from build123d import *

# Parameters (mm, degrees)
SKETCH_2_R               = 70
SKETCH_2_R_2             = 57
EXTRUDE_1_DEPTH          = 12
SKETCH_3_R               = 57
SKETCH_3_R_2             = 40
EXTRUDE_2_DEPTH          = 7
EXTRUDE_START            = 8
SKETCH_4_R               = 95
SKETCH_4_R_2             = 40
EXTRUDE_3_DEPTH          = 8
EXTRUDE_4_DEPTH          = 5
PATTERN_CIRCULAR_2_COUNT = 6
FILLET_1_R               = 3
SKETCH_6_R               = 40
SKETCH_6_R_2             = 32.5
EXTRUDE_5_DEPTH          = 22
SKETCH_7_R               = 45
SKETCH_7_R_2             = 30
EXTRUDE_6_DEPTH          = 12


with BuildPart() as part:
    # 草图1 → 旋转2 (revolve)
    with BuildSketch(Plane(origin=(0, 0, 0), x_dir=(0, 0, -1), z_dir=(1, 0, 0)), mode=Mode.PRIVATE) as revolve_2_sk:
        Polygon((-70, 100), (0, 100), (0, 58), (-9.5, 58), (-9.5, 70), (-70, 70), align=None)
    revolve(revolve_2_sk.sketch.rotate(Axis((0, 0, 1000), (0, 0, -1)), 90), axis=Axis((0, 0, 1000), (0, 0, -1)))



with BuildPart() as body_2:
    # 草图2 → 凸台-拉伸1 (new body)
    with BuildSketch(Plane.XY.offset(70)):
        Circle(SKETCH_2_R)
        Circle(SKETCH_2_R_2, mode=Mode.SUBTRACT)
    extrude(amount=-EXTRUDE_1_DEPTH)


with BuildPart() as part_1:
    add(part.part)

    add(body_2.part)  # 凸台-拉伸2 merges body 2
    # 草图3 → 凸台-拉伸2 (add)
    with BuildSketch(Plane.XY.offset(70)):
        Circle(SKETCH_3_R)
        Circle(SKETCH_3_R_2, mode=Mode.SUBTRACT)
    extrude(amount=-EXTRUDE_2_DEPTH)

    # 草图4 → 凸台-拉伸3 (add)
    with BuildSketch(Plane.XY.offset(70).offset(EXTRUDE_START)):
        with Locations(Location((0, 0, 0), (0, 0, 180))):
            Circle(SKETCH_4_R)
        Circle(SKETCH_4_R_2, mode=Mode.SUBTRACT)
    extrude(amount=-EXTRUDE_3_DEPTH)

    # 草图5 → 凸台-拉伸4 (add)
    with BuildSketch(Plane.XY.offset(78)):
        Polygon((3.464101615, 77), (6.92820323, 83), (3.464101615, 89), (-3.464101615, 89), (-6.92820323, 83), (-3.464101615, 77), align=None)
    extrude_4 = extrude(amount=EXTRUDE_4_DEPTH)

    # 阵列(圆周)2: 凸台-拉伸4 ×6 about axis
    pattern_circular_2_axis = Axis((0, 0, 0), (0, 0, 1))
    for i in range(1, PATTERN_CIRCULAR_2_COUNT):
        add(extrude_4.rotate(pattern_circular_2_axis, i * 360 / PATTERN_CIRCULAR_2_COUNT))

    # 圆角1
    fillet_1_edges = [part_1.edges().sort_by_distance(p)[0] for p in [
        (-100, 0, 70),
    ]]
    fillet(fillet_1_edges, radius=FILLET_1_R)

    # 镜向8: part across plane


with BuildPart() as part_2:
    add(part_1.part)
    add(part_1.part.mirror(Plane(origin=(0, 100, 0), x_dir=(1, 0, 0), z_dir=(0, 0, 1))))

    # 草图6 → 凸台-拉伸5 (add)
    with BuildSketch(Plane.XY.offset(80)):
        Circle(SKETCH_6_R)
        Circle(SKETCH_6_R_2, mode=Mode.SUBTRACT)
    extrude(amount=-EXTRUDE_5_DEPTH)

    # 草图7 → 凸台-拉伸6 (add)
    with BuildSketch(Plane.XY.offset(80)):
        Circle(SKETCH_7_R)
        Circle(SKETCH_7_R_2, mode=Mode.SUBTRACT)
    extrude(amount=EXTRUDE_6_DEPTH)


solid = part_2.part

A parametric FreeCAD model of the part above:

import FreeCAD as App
import Part
import Sketcher
from FreeCAD import Vector
Q = App.Units.Quantity


def edges_at(feature, points):
    """Names of the edges that pass closest to the given points."""
    edges = feature.Shape.Edges
    near = lambda p: min(range(len(edges)), key=lambda i: edges[i].distToShape(Part.Vertex(*p))[0])
    return sorted({f"Edge{near(p) + 1}" for p in points})

doc = App.newDocument("Part")
body = doc.addObject("PartDesign::Body", "Body")

sketch1 = body.newObject("Sketcher::SketchObject", "Sketch")
sketch1.AttachmentSupport = (doc.getObject("YZ_Plane"), [""])
sketch1.MapMode = "FlatFace"
sketch1.addGeometry([
    Part.LineSegment(Vector(100, 0, 0), Vector(100, 70, 0)),
    Part.LineSegment(Vector(100, 70, 0), Vector(70, 70, 0)),
    Part.LineSegment(Vector(70, 70, 0), Vector(70, 9.5, 0)),
    Part.LineSegment(Vector(70, 9.5, 0), Vector(58, 9.5, 0)),
    Part.LineSegment(Vector(58, 9.5, 0), Vector(58, 0, 0)),
    Part.LineSegment(Vector(58, 0, 0), Vector(100, 0, 0)),
], False)
sketch1.addConstraint([
    Sketcher.Constraint("Coincident", 0, 2, 1, 1),
    Sketcher.Constraint("Coincident", 1, 2, 2, 1),
    Sketcher.Constraint("Coincident", 2, 2, 3, 1),
    Sketcher.Constraint("Coincident", 3, 2, 4, 1),
    Sketcher.Constraint("Coincident", 4, 2, 5, 1),
    Sketcher.Constraint("Coincident", 5, 2, 0, 1),
    Sketcher.Constraint("Vertical", 0),
    Sketcher.Constraint("Horizontal", 1),
    Sketcher.Constraint("Vertical", 2),
    Sketcher.Constraint("Horizontal", 3),
    Sketcher.Constraint("Vertical", 4),
    Sketcher.Constraint("Horizontal", 5),
    Sketcher.Constraint("PointOnObject", 4, 2, -1),
    Sketcher.Constraint("DistanceX", 1, 2, 1, 1, 30.0),
    Sketcher.Constraint("DistanceX", 3, 2, 3, 1, 12.0),
    Sketcher.Constraint("DistanceY", 0, 1, 0, 2, 70.0),
    Sketcher.Constraint("DistanceY", 2, 2, 2, 1, 60.5),
    Sketcher.Constraint("DistanceX", -1, 1, 0, 2, 100.0),
])
revolution = body.newObject("PartDesign::Revolution", "Revolution")
revolution.Profile = sketch1
revolution.ReferenceAxis = (sketch1, ["V_Axis"])
revolution.Angle = 360
body2 = doc.addObject("PartDesign::Body", "Body001")

sketch2 = body2.newObject("Sketcher::SketchObject", "Sketch001")
sketch2.AttachmentSupport = (doc.getObject("XY_Plane001"), [""])
sketch2.MapMode = "FlatFace"
sketch2.AttachmentOffset = App.Placement(Vector(0, 0, 70), App.Rotation())
sketch2.addGeometry([
    Part.Circle(Vector(0, 0, 0), Vector(0, 0, 1), 70),
    Part.Circle(Vector(0, 0, 0), Vector(0, 0, 1), 57),
], False)
sketch2.addConstraint([
    Sketcher.Constraint("Coincident", 0, 3, -1, 1),
    Sketcher.Constraint("Coincident", 1, 3, -1, 1),
    Sketcher.Constraint("Diameter", 0, 140.0),
    Sketcher.Constraint("Diameter", 1, 114.0),
])
pad1 = body2.newObject("PartDesign::Pad", "Pad")
pad1.Profile = sketch2
pad1.Length = 12
pad1.Reversed = True
doc.recompute()

boolean = body.newObject("PartDesign::Boolean", "Boolean")
boolean.Type = "Fuse"
boolean.addObjects([body2])

sketch3 = body.newObject("Sketcher::SketchObject", "Sketch002")
sketch3.AttachmentSupport = (doc.getObject("XY_Plane"), [""])
sketch3.MapMode = "FlatFace"
sketch3.AttachmentOffset = App.Placement(Vector(0, 0, 70), App.Rotation())
sketch3.addGeometry([
    Part.Circle(Vector(0, 0, 0), Vector(0, 0, 1), 57),
    Part.Circle(Vector(0, 0, 0), Vector(0, 0, 1), 40),
], False)
sketch3.addConstraint([
    Sketcher.Constraint("Coincident", 0, 3, -1, 1),
    Sketcher.Constraint("Coincident", 1, 3, -1, 1),
    Sketcher.Constraint("Diameter", 0, 114.0),
    Sketcher.Constraint("Diameter", 1, 80.0),
])
pad2 = body.newObject("PartDesign::Pad", "Pad001")
pad2.Profile = sketch3
pad2.Length = 7
pad2.Reversed = True

sketch4 = body.newObject("Sketcher::SketchObject", "Sketch003")
sketch4.AttachmentSupport = (doc.getObject("XY_Plane"), [""])
sketch4.MapMode = "FlatFace"
sketch4.AttachmentOffset = App.Placement(Vector(0, 0, 78), App.Rotation())
sketch4.addGeometry([
    Part.Circle(Vector(0, 0, 0), Vector(0, 0, 1), 95),
    Part.Circle(Vector(0, 0, 0), Vector(0, 0, 1), 40),
], False)
sketch4.addConstraint([
    Sketcher.Constraint("Coincident", 0, 3, -1, 1),
    Sketcher.Constraint("Coincident", 1, 3, -1, 1),
    Sketcher.Constraint("Diameter", 0, 190.0),
    Sketcher.Constraint("Diameter", 1, 80.0),
])
pad3 = body.newObject("PartDesign::Pad", "Pad002")
pad3.Profile = sketch4
pad3.Length = 8
pad3.Reversed = True

sketch5 = body.newObject("Sketcher::SketchObject", "Sketch004")
sketch5.AttachmentSupport = (doc.getObject("XY_Plane"), [""])
sketch5.MapMode = "FlatFace"
sketch5.AttachmentOffset = App.Placement(Vector(0, 0, 78), App.Rotation())
sketch5.addGeometry([
    Part.LineSegment(Vector(3.464102, 77, 0), Vector(6.928203, 83, 0)),
    Part.LineSegment(Vector(6.928203, 83, 0), Vector(3.464102, 89, 0)),
    Part.LineSegment(Vector(3.464102, 89, 0), Vector(-3.464102, 89, 0)),
    Part.LineSegment(Vector(-3.464102, 89, 0), Vector(-6.928203, 83, 0)),
    Part.LineSegment(Vector(-6.928203, 83, 0), Vector(-3.464102, 77, 0)),
    Part.LineSegment(Vector(-3.464102, 77, 0), Vector(3.464102, 77, 0)),
], False)
sketch5.addConstraint([
    Sketcher.Constraint("Coincident", 0, 2, 1, 1),
    Sketcher.Constraint("Coincident", 1, 2, 2, 1),
    Sketcher.Constraint("Coincident", 2, 2, 3, 1),
    Sketcher.Constraint("Coincident", 3, 2, 4, 1),
    Sketcher.Constraint("Coincident", 4, 2, 5, 1),
    Sketcher.Constraint("Coincident", 5, 2, 0, 1),
    Sketcher.Constraint("Horizontal", 2),
    Sketcher.Constraint("Horizontal", 5),
    Sketcher.Constraint("Symmetric", 0, 2, 3, 2, -2),
    Sketcher.Constraint("Parallel", 0, 3),
    Sketcher.Constraint("Parallel", 1, 4),
    Sketcher.Constraint("Vertical", 2, 2, 4, 2),
    Sketcher.Constraint("Vertical", 1, 2, 5, 2),
    Sketcher.Constraint("Angle", 0, Q("60 deg")),
    Sketcher.Constraint("DistanceY", -1, 1, 0, 2, 83.0),
    Sketcher.Constraint("DistanceY", -1, 1, 1, 2, 89.0),
    Sketcher.Constraint("DistanceX", -1, 1, 1, 2, 3.464102),
])
pad4 = body.newObject("PartDesign::Pad", "Pad003")
pad4.Profile = sketch5
pad4.Length = 5
doc.recompute()

polarpattern = body.newObject("PartDesign::PolarPattern", "PolarPattern")
polarpattern.Originals = [pad4]
polarpattern.Axis = (doc.getObject("Z_Axis"), [""])
polarpattern.Angle = 360
polarpattern.Occurrences = 6
body.Tip = polarpattern
doc.recompute()

fillet = body.newObject("PartDesign::Fillet", "Fillet")
fillet.Base = (polarpattern, edges_at(polarpattern, [(-100, 0, 70)]))
fillet.Radius = 3
body3 = doc.addObject("PartDesign::Body", "Body002")
doc.recompute()

body3.BaseFeature = body
doc.recompute()

mirroring = doc.addObject("Part::Mirroring", "Mirroring")
mirroring.Source = body
mirroring.Base = Vector(0, 100, 0)
mirroring.Normal = Vector(0, 0, 1)
body4 = doc.addObject("PartDesign::Body", "Body003")
body4.BaseFeature = mirroring
boolean2 = body3.newObject("PartDesign::Boolean", "Boolean001")
boolean2.Type = "Fuse"
boolean2.addObjects([body4])
doc.recompute()

sketch6 = body3.newObject("Sketcher::SketchObject", "Sketch005")
sketch6.AttachmentSupport = (doc.getObject("XY_Plane002"), [""])
sketch6.MapMode = "FlatFace"
sketch6.AttachmentOffset = App.Placement(Vector(0, 0, 80), App.Rotation())
sketch6.addGeometry([
    Part.Circle(Vector(0, 0, 0), Vector(0, 0, 1), 40),
    Part.Circle(Vector(0, 0, 0), Vector(0, 0, 1), 32.5),
], False)
sketch6.addConstraint([
    Sketcher.Constraint("Coincident", 0, 3, -1, 1),
    Sketcher.Constraint("Coincident", 1, 3, -1, 1),
    Sketcher.Constraint("Diameter", 0, 80.0),
    Sketcher.Constraint("Diameter", 1, 65.0),
])
pad5 = body3.newObject("PartDesign::Pad", "Pad004")
pad5.Profile = sketch6
pad5.Length = 22
pad5.Reversed = True

sketch7 = body3.newObject("Sketcher::SketchObject", "Sketch006")
sketch7.AttachmentSupport = (doc.getObject("XY_Plane002"), [""])
sketch7.MapMode = "FlatFace"
sketch7.AttachmentOffset = App.Placement(Vector(0, 0, 80), App.Rotation())
sketch7.addGeometry([
    Part.Circle(Vector(0, 0, 0), Vector(0, 0, 1), 45),
    Part.Circle(Vector(0, 0, 0), Vector(0, 0, 1), 30),
], False)
sketch7.addConstraint([
    Sketcher.Constraint("Coincident", 0, 3, -1, 1),
    Sketcher.Constraint("Coincident", 1, 3, -1, 1),
    Sketcher.Constraint("Diameter", 0, 90.0),
    Sketcher.Constraint("Diameter", 1, 60.0),
])
pad6 = body3.newObject("PartDesign::Pad", "Pad005")
pad6.Profile = sketch7
pad6.Length = 12
mirroring.Visibility = False

doc.recompute()
